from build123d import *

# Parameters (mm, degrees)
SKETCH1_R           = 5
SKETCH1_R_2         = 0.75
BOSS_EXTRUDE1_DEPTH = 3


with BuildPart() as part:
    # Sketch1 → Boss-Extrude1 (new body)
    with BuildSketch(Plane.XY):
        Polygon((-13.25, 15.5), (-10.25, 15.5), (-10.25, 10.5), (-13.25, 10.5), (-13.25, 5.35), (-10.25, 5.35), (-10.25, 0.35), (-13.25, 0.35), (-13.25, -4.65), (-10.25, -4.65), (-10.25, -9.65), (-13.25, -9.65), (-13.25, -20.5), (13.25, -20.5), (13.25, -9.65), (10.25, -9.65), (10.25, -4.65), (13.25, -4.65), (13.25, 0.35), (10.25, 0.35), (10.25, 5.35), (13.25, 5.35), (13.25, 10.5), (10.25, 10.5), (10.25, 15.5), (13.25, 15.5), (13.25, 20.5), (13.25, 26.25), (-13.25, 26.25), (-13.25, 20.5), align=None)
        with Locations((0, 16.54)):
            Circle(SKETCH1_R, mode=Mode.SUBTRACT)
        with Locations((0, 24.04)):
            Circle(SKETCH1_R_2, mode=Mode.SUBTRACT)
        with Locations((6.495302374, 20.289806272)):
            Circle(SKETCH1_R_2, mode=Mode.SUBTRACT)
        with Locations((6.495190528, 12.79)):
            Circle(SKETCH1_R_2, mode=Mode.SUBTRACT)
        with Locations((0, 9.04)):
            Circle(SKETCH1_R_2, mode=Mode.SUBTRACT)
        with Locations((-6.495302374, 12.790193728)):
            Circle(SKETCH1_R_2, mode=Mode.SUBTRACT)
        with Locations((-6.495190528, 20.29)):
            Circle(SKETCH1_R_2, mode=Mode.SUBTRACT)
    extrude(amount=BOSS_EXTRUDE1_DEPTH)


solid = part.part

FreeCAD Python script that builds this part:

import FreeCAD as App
import Part
import Sketcher
Q = App.Units.Quantity


def add_polygon(sketch, points):
    """Adds a closed chain of lines whose ends are joined by coincident constraints."""
    first, n = sketch.GeometryCount, len(points)
    for a, b in zip(points, points[1:] + points[:1]):
        sketch.addGeometry(Part.LineSegment(App.Vector(*a, 0), App.Vector(*b, 0)), False)
    for i in range(n):
        sketch.addConstraint(Sketcher.Constraint("Coincident", first + i, 2, first + (i + 1) % n, 1))

doc = App.newDocument("Part")
body = doc.addObject("PartDesign::Body", "Body")

# Sketch on XY plane
sketch1 = body.newObject("Sketcher::SketchObject", "Sketch")
sketch1.AttachmentSupport = (doc.getObject("XY_Plane"), [""])
sketch1.MapMode = "FlatFace"
add_polygon(sketch1, [(-13.2, 15.5), (-10.2, 15.5), (-10.2, 10.5), (-13.2, 10.5), (-13.2, 5.3), (-10.2, 5.3), (-10.2, 0.3), (-13.2, 0.3), (-13.2, -4.7), (-10.2, -4.7), (-10.2, -9.7), (-13.2, -9.7), (-13.2, -20.5), (13.2, -20.5), (13.2, -9.7), (10.2, -9.7), (10.2, -4.7), (13.2, -4.7), (13.2, 0.3), (10.2, 0.3), (10.2, 5.3), (13.2, 5.3), (13.2, 10.5), (10.2, 10.5), (10.2, 15.5), (13.2, 15.5), (13.2, 26.2), (-13.2, 26.2)])  # lines 0-27
sketch1.addGeometry(Part.Circle(App.Vector(-6.5, 12.8, 0), App.Vector(0, 0, 1), 0.8), False)  # 28
sketch1.addGeometry(Part.Circle(App.Vector(0, 9, 0), App.Vector(0, 0, 1), 0.8), False)  # 29
sketch1.addGeometry(Part.Circle(App.Vector(6.5, 12.8, 0), App.Vector(0, 0, 1), 0.8), False)  # 30
sketch1.addGeometry(Part.Circle(App.Vector(-6.5, 20.3, 0), App.Vector(0, 0, 1), 0.8), False)  # 31
sketch1.addGeometry(Part.Circle(App.Vector(0, 16.5, 0), App.Vector(0, 0, 1), 5), False)  # 32
sketch1.addGeometry(Part.Circle(App.Vector(6.5, 20.3, 0), App.Vector(0, 0, 1), 0.8), False)  # 33
sketch1.addGeometry(Part.Circle(App.Vector(0, 24, 0), App.Vector(0, 0, 1), 0.8), False)  # 34
sketch1.addConstraint([
    Sketcher.Constraint("Horizontal", 0),
    Sketcher.Constraint("Vertical", 1),
    Sketcher.Constraint("Horizontal", 2),
    Sketcher.Constraint("Vertical", 3),
    Sketcher.Constraint("Horizontal", 4),
    Sketcher.Constraint("Vertical", 5),
    Sketcher.Constraint("Horizontal", 6),
    Sketcher.Constraint("Vertical", 7),
    Sketcher.Constraint("Horizontal", 8),
    Sketcher.Constraint("Vertical", 9),
    Sketcher.Constraint("Horizontal", 10),
    Sketcher.Constraint("Vertical", 11),
    Sketcher.Constraint("Horizontal", 12),
    Sketcher.Constraint("Vertical", 13),
    Sketcher.Constraint("Horizontal", 14),
    Sketcher.Constraint("Vertical", 15),
    Sketcher.Constraint("Horizontal", 16),
    Sketcher.Constraint("Vertical", 17),
    Sketcher.Constraint("Horizontal", 18),
    Sketcher.Constraint("Vertical", 19),
    Sketcher.Constraint("Horizontal", 20),
    Sketcher.Constraint("Vertical", 21),
    Sketcher.Constraint("Horizontal", 22),
    Sketcher.Constraint("Vertical", 23),
    Sketcher.Constraint("Horizontal", 24),
    Sketcher.Constraint("Vertical", 25),
    Sketcher.Constraint("Horizontal", 26),
    Sketcher.Constraint("Vertical", 27),
    Sketcher.Constraint("Equal", 28, 29),
    Sketcher.Constraint("Equal", 29, 30),
    Sketcher.Constraint("Equal", 30, 31),
    Sketcher.Constraint("Equal", 31, 33),
    Sketcher.Constraint("Equal", 33, 34),
    Sketcher.Constraint("Symmetric", 10, 2, 13, 2, -2),
    Sketcher.Constraint("Symmetric", 8, 2, 15, 2, -2),
    Sketcher.Constraint("Symmetric", 6, 2, 17, 2, -2),
    Sketcher.Constraint("Symmetric", 4, 2, 19, 2, -2),
    Sketcher.Constraint("Symmetric", 2, 2, 21, 2, -2),
    Sketcher.Constraint("Symmetric", 0, 2, 23, 2, -2),
    Sketcher.Constraint("PointOnObject", 29, 3, -2),
    Sketcher.Constraint("PointOnObject", 32, 3, -2),
    Sketcher.Constraint("PointOnObject", 34, 3, -2),
    Sketcher.Constraint("Vertical", 1, 2, 4, 2),
    Sketcher.Constraint("Vertical", 3, 2, 6, 2),
    Sketcher.Constraint("Vertical", 5, 2, 8, 2),
    Sketcher.Constraint("Vertical", 7, 2, 10, 2),
    Sketcher.Constraint("Vertical", 21, 2, 24, 2),
    Sketcher.Constraint("Vertical", 11, 2, 26, 2),
    Sketcher.Constraint("Equal", 1, 5),
    Sketcher.Constraint("Equal", 5, 7),
    Sketcher.Constraint("Equal", 7, 9),
    Sketcher.Constraint("Diameter", 32, Q("10 mm")),
    Sketcher.Constraint("Diameter", 28, Q("1.5 mm")),
    Sketcher.Constraint("DistanceX", 0, 1, 0, 2, Q("3 mm")),
    Sketcher.Constraint("DistanceY", 1, 2, 1, 1, Q("5 mm")),
    Sketcher.Constraint("DistanceX", 12, 1, 12, 2, Q("26.5 mm")),
    Sketcher.Constraint("DistanceY", 3, 2, 3, 1, Q("5.15 mm")),
    Sketcher.Constraint("DistanceY", 11, 2, 11, 1, Q("10.85 mm")),
    Sketcher.Constraint("DistanceY", 25, 1, 25, 2, Q("10.75 mm")),
    Sketcher.Constraint("DistanceY", -1, 1, 0, 2, Q("15.5 mm")),
    Sketcher.Constraint("DistanceY", 30, 3, 31, 3, Q("7.5 mm")),
    Sketcher.Constraint("DistanceY", 29, 3, 32, 3, Q("7.5 mm")),
    Sketcher.Constraint("DistanceY", 32, 3, 34, 3, Q("7.5 mm")),
    Sketcher.Constraint("DistanceY", -1, 1, 29, 3, Q("9.04 mm")),
    Sketcher.Constraint("DistanceY", -1, 1, 30, 3, Q("12.79 mm")),
    Sketcher.Constraint("DistanceX", -1, 1, 30, 3, Q("6.495191 mm")),
    Sketcher.Constraint("DistanceX", 31, 3, -1, 1, Q("6.495191 mm")),
    Sketcher.Constraint("DistanceX", 28, 3, 31, 3, Q("0.000112 mm")),
    Sketcher.Constraint("DistanceX", 30, 3, 33, 3, Q("0.000112 mm")),
    Sketcher.Constraint("DistanceY", -1, 1, 28, 3, Q("12.790194 mm")),
    Sketcher.Constraint("DistanceY", -1, 1, 33, 3, Q("20.289806 mm")),
])
pad1 = body.newObject("PartDesign::Pad", "Pad")
pad1.Profile = sketch1
pad1.Length = 3

doc.recompute()
